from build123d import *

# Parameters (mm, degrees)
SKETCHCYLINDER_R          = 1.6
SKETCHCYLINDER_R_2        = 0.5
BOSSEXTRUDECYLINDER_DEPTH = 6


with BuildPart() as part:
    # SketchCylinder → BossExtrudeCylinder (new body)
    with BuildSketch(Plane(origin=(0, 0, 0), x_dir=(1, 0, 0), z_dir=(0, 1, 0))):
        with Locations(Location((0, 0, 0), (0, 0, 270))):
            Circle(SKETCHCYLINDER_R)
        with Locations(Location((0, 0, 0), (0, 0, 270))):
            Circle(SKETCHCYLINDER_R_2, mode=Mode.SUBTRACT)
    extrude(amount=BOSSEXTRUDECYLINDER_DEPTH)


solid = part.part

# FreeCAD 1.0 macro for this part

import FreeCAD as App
import Part
import Sketcher

doc = App.newDocument("Part")
body = doc.addObject("PartDesign::Body", "Body")

# Sketch on XZ plane
sketch1 = doc.addObject("Sketcher::SketchObject", "Sketch")
body.addObject(sketch1)
sketch1.AttachmentSupport = (doc.XZ_Plane, [""])
sketch1.MapMode = "FlatFace"
sketch1.addGeometry([
    Part.Circle(App.Vector(0, 0, 0), App.Vector(0, 0, 1), 1.6),
    Part.Circle(App.Vector(0, 0, 0), App.Vector(0, 0, 1), 0.5),
], False)
sketch1.addConstraint([
    Sketcher.Constraint("Coincident", 0, 3, -1, 1),
    Sketcher.Constraint("Coincident", 1, 3, -1, 1),
    Sketcher.Constraint("Diameter", 1, 1.0),
    Sketcher.Constraint("Diameter", 0, 3.2),
])
pad1 = doc.addObject("PartDesign::Pad", "Pad")
body.addObject(pad1)
pad1.Profile = sketch1
pad1.Length = 6
pad1.Reversed = True

doc.recompute()
